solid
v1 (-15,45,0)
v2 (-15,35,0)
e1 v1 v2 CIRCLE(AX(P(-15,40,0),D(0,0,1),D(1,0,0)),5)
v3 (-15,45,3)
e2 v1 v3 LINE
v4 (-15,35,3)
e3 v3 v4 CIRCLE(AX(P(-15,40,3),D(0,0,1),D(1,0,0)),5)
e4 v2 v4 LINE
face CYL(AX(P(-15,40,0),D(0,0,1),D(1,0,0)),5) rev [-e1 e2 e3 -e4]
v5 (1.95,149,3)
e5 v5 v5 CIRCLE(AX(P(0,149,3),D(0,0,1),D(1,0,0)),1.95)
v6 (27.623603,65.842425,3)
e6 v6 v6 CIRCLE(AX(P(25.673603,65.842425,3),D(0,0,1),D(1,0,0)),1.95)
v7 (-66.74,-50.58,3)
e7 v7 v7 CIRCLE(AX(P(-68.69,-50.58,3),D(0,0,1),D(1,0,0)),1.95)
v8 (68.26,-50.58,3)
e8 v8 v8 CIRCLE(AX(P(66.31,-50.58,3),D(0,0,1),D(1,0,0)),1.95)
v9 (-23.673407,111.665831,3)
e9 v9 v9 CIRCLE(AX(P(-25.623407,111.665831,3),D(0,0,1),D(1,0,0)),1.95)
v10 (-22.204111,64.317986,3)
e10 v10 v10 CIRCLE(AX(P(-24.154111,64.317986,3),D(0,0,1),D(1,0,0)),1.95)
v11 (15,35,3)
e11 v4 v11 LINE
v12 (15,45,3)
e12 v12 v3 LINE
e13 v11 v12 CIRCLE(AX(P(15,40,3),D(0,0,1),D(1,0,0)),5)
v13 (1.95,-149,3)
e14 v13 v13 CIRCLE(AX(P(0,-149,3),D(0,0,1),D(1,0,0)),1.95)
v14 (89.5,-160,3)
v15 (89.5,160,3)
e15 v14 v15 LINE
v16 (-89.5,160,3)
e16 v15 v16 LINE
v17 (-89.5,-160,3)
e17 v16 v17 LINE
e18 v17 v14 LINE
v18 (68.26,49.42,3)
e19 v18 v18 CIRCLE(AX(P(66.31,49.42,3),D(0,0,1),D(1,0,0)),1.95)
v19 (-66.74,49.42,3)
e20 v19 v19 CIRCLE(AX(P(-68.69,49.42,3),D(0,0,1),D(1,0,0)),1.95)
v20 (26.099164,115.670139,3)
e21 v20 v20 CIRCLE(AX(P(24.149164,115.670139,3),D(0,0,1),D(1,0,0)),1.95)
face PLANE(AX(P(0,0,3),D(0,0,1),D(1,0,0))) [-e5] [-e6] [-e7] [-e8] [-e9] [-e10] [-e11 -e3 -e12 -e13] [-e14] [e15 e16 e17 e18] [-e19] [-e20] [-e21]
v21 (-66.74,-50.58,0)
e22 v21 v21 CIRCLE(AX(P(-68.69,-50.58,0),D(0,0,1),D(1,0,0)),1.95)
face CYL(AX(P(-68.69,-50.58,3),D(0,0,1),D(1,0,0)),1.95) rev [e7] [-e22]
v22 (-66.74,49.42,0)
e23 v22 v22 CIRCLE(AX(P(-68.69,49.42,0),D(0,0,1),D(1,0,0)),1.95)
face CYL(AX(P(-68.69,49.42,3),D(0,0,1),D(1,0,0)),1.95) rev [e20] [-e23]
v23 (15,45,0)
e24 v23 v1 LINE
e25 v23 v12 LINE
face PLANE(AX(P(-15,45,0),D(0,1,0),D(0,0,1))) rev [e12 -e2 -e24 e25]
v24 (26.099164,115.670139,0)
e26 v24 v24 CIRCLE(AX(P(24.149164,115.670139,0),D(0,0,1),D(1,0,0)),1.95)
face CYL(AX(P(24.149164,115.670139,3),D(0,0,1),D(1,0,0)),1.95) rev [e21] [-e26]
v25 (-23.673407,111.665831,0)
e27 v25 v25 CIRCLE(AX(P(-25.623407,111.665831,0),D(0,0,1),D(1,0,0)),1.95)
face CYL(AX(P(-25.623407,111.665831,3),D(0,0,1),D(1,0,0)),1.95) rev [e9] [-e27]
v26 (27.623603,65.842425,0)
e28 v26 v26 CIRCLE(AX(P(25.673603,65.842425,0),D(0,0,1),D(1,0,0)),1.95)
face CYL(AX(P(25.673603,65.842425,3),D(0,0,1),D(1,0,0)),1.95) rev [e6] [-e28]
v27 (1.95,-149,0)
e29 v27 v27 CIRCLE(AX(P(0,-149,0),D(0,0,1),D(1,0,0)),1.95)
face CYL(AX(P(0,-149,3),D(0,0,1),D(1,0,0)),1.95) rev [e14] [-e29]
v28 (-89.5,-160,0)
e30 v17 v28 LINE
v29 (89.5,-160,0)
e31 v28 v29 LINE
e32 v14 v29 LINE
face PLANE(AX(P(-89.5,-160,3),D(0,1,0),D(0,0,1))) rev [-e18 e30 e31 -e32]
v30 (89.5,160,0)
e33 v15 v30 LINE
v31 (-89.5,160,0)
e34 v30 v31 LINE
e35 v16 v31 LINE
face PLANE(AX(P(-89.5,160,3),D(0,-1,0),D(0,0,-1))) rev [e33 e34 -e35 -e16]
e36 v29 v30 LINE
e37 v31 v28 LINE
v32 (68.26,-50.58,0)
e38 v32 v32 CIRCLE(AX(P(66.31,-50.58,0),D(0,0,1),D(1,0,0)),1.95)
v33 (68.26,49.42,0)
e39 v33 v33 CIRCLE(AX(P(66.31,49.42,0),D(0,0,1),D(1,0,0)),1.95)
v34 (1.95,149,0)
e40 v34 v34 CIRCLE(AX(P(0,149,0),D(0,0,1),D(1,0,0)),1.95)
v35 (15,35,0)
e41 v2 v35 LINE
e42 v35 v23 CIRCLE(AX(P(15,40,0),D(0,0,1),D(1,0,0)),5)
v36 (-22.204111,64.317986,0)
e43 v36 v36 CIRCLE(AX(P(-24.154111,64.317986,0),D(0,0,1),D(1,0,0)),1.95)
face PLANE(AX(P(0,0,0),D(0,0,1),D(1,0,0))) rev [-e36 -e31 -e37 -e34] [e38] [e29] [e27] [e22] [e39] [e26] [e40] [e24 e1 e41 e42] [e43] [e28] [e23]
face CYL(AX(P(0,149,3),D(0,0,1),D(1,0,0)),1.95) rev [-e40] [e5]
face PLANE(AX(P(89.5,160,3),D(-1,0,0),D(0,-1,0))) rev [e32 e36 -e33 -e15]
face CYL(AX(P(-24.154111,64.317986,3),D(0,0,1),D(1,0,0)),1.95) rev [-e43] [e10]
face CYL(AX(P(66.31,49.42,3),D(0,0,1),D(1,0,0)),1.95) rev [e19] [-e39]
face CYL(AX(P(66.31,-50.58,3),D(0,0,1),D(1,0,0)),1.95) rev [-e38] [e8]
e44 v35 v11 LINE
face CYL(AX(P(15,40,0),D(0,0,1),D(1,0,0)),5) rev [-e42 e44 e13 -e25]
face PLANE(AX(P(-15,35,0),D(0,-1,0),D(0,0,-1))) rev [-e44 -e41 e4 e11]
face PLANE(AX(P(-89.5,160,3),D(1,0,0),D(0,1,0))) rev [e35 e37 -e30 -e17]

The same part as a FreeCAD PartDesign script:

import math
import FreeCAD as App
import Part
import Sketcher

doc = App.newDocument("Part")
body = doc.addObject("PartDesign::Body", "Body")

sketch1 = body.newObject("Sketcher::SketchObject", "Sketch")
sketch1.AttachmentSupport = (doc.getObject("XY_Plane"), [""])
sketch1.MapMode = "FlatFace"
sketch1.addGeometry([
    Part.LineSegment(App.Vector(-90, 160, 0), App.Vector(-90, -160, 0)),
    Part.LineSegment(App.Vector(-90, -160, 0), App.Vector(90, -160, 0)),
    Part.LineSegment(App.Vector(90, -160, 0), App.Vector(90, 160, 0)),
    Part.LineSegment(App.Vector(90, 160, 0), App.Vector(-90, 160, 0)),
], False)
sketch1.addConstraint([
    Sketcher.Constraint("Coincident", 0, 2, 1, 1),
    Sketcher.Constraint("Coincident", 1, 2, 2, 1),
    Sketcher.Constraint("Coincident", 2, 2, 3, 1),
    Sketcher.Constraint("Coincident", 3, 2, 0, 1),
    Sketcher.Constraint("Vertical", 0),
    Sketcher.Constraint("Horizontal", 1),
    Sketcher.Constraint("Vertical", 2),
    Sketcher.Constraint("Horizontal", 3),
    Sketcher.Constraint("Symmetric", 0, 2, 2, 2, -1, 1),
    Sketcher.Constraint("DistanceX", 1, 1, 1, 2, 179.0),
    Sketcher.Constraint("DistanceY", 0, 2, 0, 1, 320.0),
])
pad1 = body.newObject("PartDesign::Pad", "Pad")
pad1.Profile = sketch1
pad1.Length = 3

sketch2 = body.newObject("Sketcher::SketchObject", "Sketch001")
sketch2.AttachmentSupport = (doc.getObject("XY_Plane"), [""])
sketch2.MapMode = "FlatFace"
sketch2.AttachmentOffset = App.Placement(App.Vector(0, 0, 3), App.Rotation())
sketch2.addGeometry([
    Part.Circle(App.Vector(0, 149, 0), App.Vector(0, 0, 1), 1.9),
    Part.Circle(App.Vector(-68.7, 49.4, 0), App.Vector(0, 0, 1), 1.9),
    Part.Circle(App.Vector(66.3, 49.4, 0), App.Vector(0, 0, 1), 1.9),
    Part.Circle(App.Vector(-68.7, -50.6, 0), App.Vector(0, 0, 1), 1.9),
    Part.Circle(App.Vector(0, -149, 0), App.Vector(0, 0, 1), 1.9),
    Part.Circle(App.Vector(66.3, -50.6, 0), App.Vector(0, 0, 1), 1.9),
], False)
sketch2.addConstraint([
    Sketcher.Constraint("Equal", 0, 1),
    Sketcher.Constraint("Equal", 1, 2),
    Sketcher.Constraint("Equal", 2, 3),
    Sketcher.Constraint("Equal", 3, 4),
    Sketcher.Constraint("Equal", 4, 5),
    Sketcher.Constraint("Symmetric", 0, 3, 4, 3, -1, 1),
    Sketcher.Constraint("PointOnObject", 0, 3, -2),
    Sketcher.Constraint("Horizontal", 1, 3, 2, 3),
    Sketcher.Constraint("Horizontal", 3, 3, 5, 3),
    Sketcher.Constraint("Vertical", 1, 3, 3, 3),
    Sketcher.Constraint("Vertical", 2, 3, 5, 3),
    Sketcher.Constraint("Diameter", 0, 3.9),
    Sketcher.Constraint("DistanceY", -1, 1, 0, 3, 149.0),
    Sketcher.Constraint("DistanceX", 1, 3, 2, 3, 135.0),
    Sketcher.Constraint("DistanceY", 3, 3, 1, 3, 100.0),
    Sketcher.Constraint("DistanceX", 1, 3, -1, 1, 68.69),
    Sketcher.Constraint("DistanceY", -1, 1, 1, 3, 49.42),
])
doc.recompute()
hole = body.newObject("PartDesign::Hole", "Hole")
hole.Profile = sketch2
hole.ThreadType = "None"
hole.Diameter = 3.9
hole.DepthType = "ThroughAll"

sketch3 = body.newObject("Sketcher::SketchObject", "Sketch002")
sketch3.AttachmentSupport = (doc.getObject("XY_Plane"), [""])
sketch3.MapMode = "FlatFace"
sketch3.AttachmentOffset = App.Placement(App.Vector(0, 0, 3), App.Rotation())
sketch3.addGeometry([
    Part.LineSegment(App.Vector(15, 45, 0), App.Vector(-15, 45, 0)),
    Part.ArcOfCircle(Part.Circle(App.Vector(-15, 40, 0), App.Vector(0, 0, 1), 5), math.radians(90), math.radians(270)),
    Part.LineSegment(App.Vector(-15, 35, 0), App.Vector(15, 35, 0)),
    Part.ArcOfCircle(Part.Circle(App.Vector(15, 40, 0), App.Vector(0, 0, 1), 5), math.radians(-90), math.radians(90)),
], False)
sketch3.addConstraint([
    Sketcher.Constraint("Tangent", 0, 2, 1, 1),
    Sketcher.Constraint("Tangent", 1, 2, 2, 1),
    Sketcher.Constraint("Tangent", 2, 2, 3, 1),
    Sketcher.Constraint("Tangent", 3, 2, 0, 1),
    Sketcher.Constraint("Horizontal", 0),
    Sketcher.Constraint("Horizontal", 2),
    Sketcher.Constraint("Radius", 1, 5.0),
    Sketcher.Constraint("DistanceX", 0, 2, 0, 1, 30.0),
    Sketcher.Constraint("DistanceX", 1, 3, -1, 1, 15.0),
    Sketcher.Constraint("DistanceY", -1, 1, 1, 3, 40.0),
])
pocket1 = body.newObject("PartDesign::Pocket", "Pocket")
pocket1.Profile = sketch3
pocket1.Type = "ThroughAll"

sketch4 = body.newObject("Sketcher::SketchObject", "Sketch003")
sketch4.AttachmentSupport = (doc.getObject("XY_Plane"), [""])
sketch4.MapMode = "FlatFace"
sketch4.AttachmentOffset = App.Placement(App.Vector(0, 0, 3), App.Rotation())
sketch4.addGeometry([
    Part.Circle(App.Vector(-24.2, 64.3, 0), App.Vector(0, 0, 1), 1.9),
    Part.Circle(App.Vector(25.7, 65.8, 0), App.Vector(0, 0, 1), 1.9),
    Part.Circle(App.Vector(24.1, 115.7, 0), App.Vector(0, 0, 1), 1.9),
    Part.Circle(App.Vector(-25.6, 111.7, 0), App.Vector(0, 0, 1), 1.9),
], False)
sketch4.addConstraint([
    Sketcher.Constraint("Equal", 0, 1),
    Sketcher.Constraint("Equal", 1, 2),
    Sketcher.Constraint("Equal", 2, 3),
    Sketcher.Constraint("Diameter", 0, 3.9),
    Sketcher.Constraint("DistanceX", 0, 3, -1, 1, 24.154111),
    Sketcher.Constraint("DistanceY", -1, 1, 2, 3, 115.670139),
    Sketcher.Constraint("DistanceY", -1, 1, 3, 3, 111.665831),
    Sketcher.Constraint("DistanceY", 0, 3, 1, 3, 1.524439),
    Sketcher.Constraint("DistanceX", 2, 3, 1, 3, 1.524439),
    Sketcher.Constraint("DistanceX", 3, 3, 2, 3, 49.772572),
    Sketcher.Constraint("DistanceY", -1, 1, 0, 3, 64.317986),
    Sketcher.Constraint("DistanceX", -1, 1, 1, 3, 25.673603),
])
doc.recompute()
hole2 = body.newObject("PartDesign::Hole", "Hole001")
hole2.Profile = sketch4
hole2.ThreadType = "None"
hole2.Diameter = 3.9
hole2.DepthType = "ThroughAll"

doc.recompute()
